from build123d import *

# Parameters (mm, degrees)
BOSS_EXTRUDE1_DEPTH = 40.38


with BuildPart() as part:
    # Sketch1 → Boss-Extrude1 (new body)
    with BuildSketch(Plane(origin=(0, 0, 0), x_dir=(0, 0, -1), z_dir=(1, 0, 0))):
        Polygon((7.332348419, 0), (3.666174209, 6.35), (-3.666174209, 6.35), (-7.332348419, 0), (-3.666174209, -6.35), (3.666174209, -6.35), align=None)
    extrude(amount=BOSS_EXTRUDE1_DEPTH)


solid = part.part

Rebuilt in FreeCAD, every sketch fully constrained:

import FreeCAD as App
import Part
import Sketcher
from FreeCAD import Vector
Q = App.Units.Quantity

doc = App.newDocument("Part")
body = doc.addObject("PartDesign::Body", "Body")

sketch1 = body.newObject("Sketcher::SketchObject", "Sketch")
sketch1.AttachmentSupport = (doc.getObject("YZ_Plane"), [""])
sketch1.MapMode = "FlatFace"
sketch1.addGeometry(Part.LineSegment(Vector(0, -7, 0), Vector(6, -4, 0)), False)
sketch1.addGeometry(Part.LineSegment(Vector(6, -4, 0), Vector(6, 4, 0)), False)
sketch1.addGeometry(Part.LineSegment(Vector(6, 4, 0), Vector(0, 7, 0)), False)
sketch1.addGeometry(Part.LineSegment(Vector(0, 7, 0), Vector(-6, 4, 0)), False)
sketch1.addGeometry(Part.LineSegment(Vector(-6, 4, 0), Vector(-6, -4, 0)), False)
sketch1.addGeometry(Part.LineSegment(Vector(-6, -4, 0), Vector(0, -7, 0)), False)
sketch1.addConstraint(Sketcher.Constraint("Coincident", 0, 2, 1, 1))
sketch1.addConstraint(Sketcher.Constraint("Coincident", 1, 2, 2, 1))
sketch1.addConstraint(Sketcher.Constraint("Coincident", 2, 2, 3, 1))
sketch1.addConstraint(Sketcher.Constraint("Coincident", 3, 2, 4, 1))
sketch1.addConstraint(Sketcher.Constraint("Coincident", 4, 2, 5, 1))
sketch1.addConstraint(Sketcher.Constraint("Coincident", 5, 2, 0, 1))
sketch1.addConstraint(Sketcher.Constraint("Vertical", 1))
sketch1.addConstraint(Sketcher.Constraint("Vertical", 4))
sketch1.addConstraint(Sketcher.Constraint("Symmetric", 0, 2, 3, 2, -1, 1))
sketch1.addConstraint(Sketcher.Constraint("Symmetric", 2, 2, 5, 2, -1, 1))
sketch1.addConstraint(Sketcher.Constraint("PointOnObject", 2, 2, -2))
sketch1.addConstraint(Sketcher.Constraint("Parallel", 2, 5))
sketch1.addConstraint(Sketcher.Constraint("Horizontal", 1, 2, 3, 2))
sketch1.addConstraint(Sketcher.Constraint("Angle", 0, Q("30 deg")))
sketch1.addConstraint(Sketcher.Constraint("DistanceX", 3, 2, 1, 2, Q("12.7 mm")))
sketch1.addConstraint(Sketcher.Constraint("DistanceY", 1, 1, 1, 2, Q("7.332348 mm")))
pad1 = body.newObject("PartDesign::Pad", "Pad")
pad1.Profile = sketch1
pad1.Length = 40.38

doc.recompute()
